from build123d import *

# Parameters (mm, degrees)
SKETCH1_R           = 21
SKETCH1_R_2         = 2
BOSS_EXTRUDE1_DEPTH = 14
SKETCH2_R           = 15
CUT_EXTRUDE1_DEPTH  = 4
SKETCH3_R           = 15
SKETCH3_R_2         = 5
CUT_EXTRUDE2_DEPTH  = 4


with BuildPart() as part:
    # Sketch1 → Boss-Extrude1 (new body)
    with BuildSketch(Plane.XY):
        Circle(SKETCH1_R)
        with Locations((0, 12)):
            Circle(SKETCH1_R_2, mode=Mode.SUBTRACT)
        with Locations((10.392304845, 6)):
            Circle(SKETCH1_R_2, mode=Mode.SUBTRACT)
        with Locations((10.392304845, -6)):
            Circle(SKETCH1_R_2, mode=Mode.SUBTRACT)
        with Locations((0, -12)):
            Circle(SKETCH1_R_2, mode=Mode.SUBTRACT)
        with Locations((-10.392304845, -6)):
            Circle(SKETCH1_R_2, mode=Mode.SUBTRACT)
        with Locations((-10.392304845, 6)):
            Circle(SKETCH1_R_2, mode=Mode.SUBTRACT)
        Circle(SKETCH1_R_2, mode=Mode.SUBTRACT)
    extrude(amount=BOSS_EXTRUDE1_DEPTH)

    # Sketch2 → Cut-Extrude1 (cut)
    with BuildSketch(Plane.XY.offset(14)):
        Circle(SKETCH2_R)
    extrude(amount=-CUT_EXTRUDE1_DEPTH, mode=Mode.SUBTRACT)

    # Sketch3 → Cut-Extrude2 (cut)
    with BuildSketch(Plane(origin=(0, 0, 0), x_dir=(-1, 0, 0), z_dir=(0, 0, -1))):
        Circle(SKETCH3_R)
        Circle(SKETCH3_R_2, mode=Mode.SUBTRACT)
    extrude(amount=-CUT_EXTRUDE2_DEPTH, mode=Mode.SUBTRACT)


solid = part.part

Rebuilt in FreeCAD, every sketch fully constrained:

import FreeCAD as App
import Part
import Sketcher
from FreeCAD import Vector

doc = App.newDocument("Part")
body = doc.addObject("PartDesign::Body", "Body")

# Sketch on XY plane
sketch1 = doc.addObject("Sketcher::SketchObject", "Sketch")
body.addObject(sketch1)
sketch1.AttachmentSupport = (doc.XY_Plane, [""])
sketch1.MapMode = "FlatFace"
sketch1.addGeometry(Part.Circle(Vector(0, 0, 0), Vector(0, 0, 1), 21), False)
sketch1.addGeometry(Part.Circle(Vector(0, -12, 0), Vector(0, 0, 1), 2), False)
sketch1.addGeometry(Part.Circle(Vector(-10.4, -6, 0), Vector(0, 0, 1), 2), False)
sketch1.addGeometry(Part.Circle(Vector(10.4, -6, 0), Vector(0, 0, 1), 2), False)
sketch1.addGeometry(Part.Circle(Vector(-10.4, 6, 0), Vector(0, 0, 1), 2), False)
sketch1.addGeometry(Part.Circle(Vector(0, 0, 0), Vector(0, 0, 1), 2), False)
sketch1.addGeometry(Part.Circle(Vector(0, 12, 0), Vector(0, 0, 1), 2), False)
sketch1.addGeometry(Part.Circle(Vector(10.4, 6, 0), Vector(0, 0, 1), 2), False)
sketch1.addConstraint(Sketcher.Constraint("Coincident", 0, 3, -1, 1))
sketch1.addConstraint(Sketcher.Constraint("Coincident", 5, 3, -1, 1))
sketch1.addConstraint(Sketcher.Constraint("Equal", 1, 2))
sketch1.addConstraint(Sketcher.Constraint("Equal", 2, 3))
sketch1.addConstraint(Sketcher.Constraint("Equal", 3, 4))
sketch1.addConstraint(Sketcher.Constraint("Equal", 4, 5))
sketch1.addConstraint(Sketcher.Constraint("Equal", 5, 6))
sketch1.addConstraint(Sketcher.Constraint("Equal", 6, 7))
sketch1.addConstraint(Sketcher.Constraint("Symmetric", 3, 3, 4, 3, -1, 1))
sketch1.addConstraint(Sketcher.Constraint("Symmetric", 1, 3, 6, 3, -1, 1))
sketch1.addConstraint(Sketcher.Constraint("Symmetric", 2, 3, 7, 3, -1, 1))
sketch1.addConstraint(Sketcher.Constraint("Symmetric", 2, 3, 3, 3, -2))
sketch1.addConstraint(Sketcher.Constraint("PointOnObject", 1, 3, -2))
sketch1.addConstraint(Sketcher.Constraint("Diameter", 0, 42.0))
sketch1.addConstraint(Sketcher.Constraint("Diameter", 1, 4.0))
sketch1.addConstraint(Sketcher.Constraint("DistanceY", 1, 3, -1, 1, 12.0))
sketch1.addConstraint(Sketcher.Constraint("DistanceY", 2, 3, -1, 1, 6.0))
sketch1.addConstraint(Sketcher.Constraint("DistanceX", 2, 3, 3, 3, 20.78461))
pad1 = doc.addObject("PartDesign::Pad", "Pad")
body.addObject(pad1)
pad1.Profile = sketch1
pad1.Length = 14

# Sketch on XY plane
sketch2 = doc.addObject("Sketcher::SketchObject", "Sketch001")
body.addObject(sketch2)
sketch2.AttachmentSupport = (doc.XY_Plane, [""])
sketch2.MapMode = "FlatFace"
sketch2.AttachmentOffset = App.Placement(Vector(0, 0, 14), App.Rotation())
sketch2.addGeometry(Part.Circle(Vector(0, 0, 0), Vector(0, 0, 1), 15), False)
sketch2.addConstraint(Sketcher.Constraint("Coincident", 0, 3, -1, 1))
sketch2.addConstraint(Sketcher.Constraint("Diameter", 0, 30.0))
pocket1 = doc.addObject("PartDesign::Pocket", "Pocket")
body.addObject(pocket1)
pocket1.Profile = sketch2
pocket1.Length = 4

# Sketch on XY plane
sketch3 = doc.addObject("Sketcher::SketchObject", "Sketch002")
body.addObject(sketch3)
sketch3.AttachmentSupport = (doc.XY_Plane, [""])
sketch3.MapMode = "FlatFace"
sketch3.addGeometry(Part.Circle(Vector(0, 0, 0), Vector(0, 0, 1), 15), False)
sketch3.addGeometry(Part.Circle(Vector(0, 0, 0), Vector(0, 0, 1), 5), False)
sketch3.addConstraint(Sketcher.Constraint("Coincident", 0, 3, -1, 1))
sketch3.addConstraint(Sketcher.Constraint("Coincident", 1, 3, -1, 1))
sketch3.addConstraint(Sketcher.Constraint("Diameter", 0, 30.0))
sketch3.addConstraint(Sketcher.Constraint("Diameter", 1, 10.0))
pocket2 = doc.addObject("PartDesign::Pocket", "Pocket001")
body.addObject(pocket2)
pocket2.Profile = sketch3
pocket2.Length = 4
pocket2.Reversed = True

doc.recompute()
